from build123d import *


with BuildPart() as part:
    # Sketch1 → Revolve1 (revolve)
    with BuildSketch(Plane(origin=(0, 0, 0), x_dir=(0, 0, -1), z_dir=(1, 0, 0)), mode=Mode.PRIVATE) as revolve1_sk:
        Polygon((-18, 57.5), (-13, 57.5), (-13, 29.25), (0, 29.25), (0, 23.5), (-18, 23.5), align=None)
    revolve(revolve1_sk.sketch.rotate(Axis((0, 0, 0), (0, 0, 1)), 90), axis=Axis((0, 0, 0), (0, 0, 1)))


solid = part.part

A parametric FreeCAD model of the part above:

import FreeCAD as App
import Part
import Sketcher

V = App.Vector

doc = App.newDocument("Part")
params = doc.addObject("Spreadsheet::Sheet", "Params")
for row, (alias, value) in enumerate([
    ("sketch1_width", "34 mm"),
    ("sketch1_height", "5 mm"),
    ("sketch1_height2", "18 mm"),
    ("sketch1_width2", "5.75 mm"),
    ("revolution_angle", "360 deg"),
], start=1):
    params.set(f"A{row}", alias)
    params.set(f"B{row}", "=" + value)
    params.setAlias(f"B{row}", alias)

body = doc.addObject("PartDesign::Body", "Body")

sketch1 = doc.addObject("Sketcher::SketchObject", "Sketch")
body.addObject(sketch1)
sketch1.AttachmentSupport = (doc.YZ_Plane, [""])
sketch1.MapMode = "FlatFace"
sketch1.addGeometry([
    Part.LineSegment(V(58, 13, 0), V(58, 18, 0)),
    Part.LineSegment(V(58, 18, 0), V(24, 18, 0)),
    Part.LineSegment(V(24, 18, 0), V(24, 0, 0)),
    Part.LineSegment(V(24, 0, 0), V(29, 0, 0)),
    Part.LineSegment(V(29, 0, 0), V(29, 13, 0)),
    Part.LineSegment(V(29, 13, 0), V(58, 13, 0)),
], False)
sketch1.addConstraint([
    Sketcher.Constraint("Coincident", 0, 2, 1, 1),
    Sketcher.Constraint("Coincident", 1, 2, 2, 1),
    Sketcher.Constraint("Coincident", 2, 2, 3, 1),
    Sketcher.Constraint("Coincident", 3, 2, 4, 1),
    Sketcher.Constraint("Coincident", 4, 2, 5, 1),
    Sketcher.Constraint("Coincident", 5, 2, 0, 1),
    Sketcher.Constraint("Vertical", 0),
    Sketcher.Constraint("Horizontal", 1),
    Sketcher.Constraint("Vertical", 2),
    Sketcher.Constraint("Horizontal", 3),
    Sketcher.Constraint("Vertical", 4),
    Sketcher.Constraint("Horizontal", 5),
    Sketcher.Constraint("PointOnObject", 2, 2, -1),
    Sketcher.Constraint("DistanceX", 1, 2, 1, 1, 34.0),
    Sketcher.Constraint("DistanceY", 0, 1, 0, 2, 5.0),
    Sketcher.Constraint("DistanceY", 2, 2, 2, 1, 18.0),
    Sketcher.Constraint("DistanceX", 3, 1, 3, 2, 5.75),
    Sketcher.Constraint("DistanceX", -1, 1, 0, 2, 57.5),
])
sketch1.setExpression("Constraints[13]", "Params.sketch1_width")
sketch1.setExpression("Constraints[14]", "Params.sketch1_height")
sketch1.setExpression("Constraints[15]", "Params.sketch1_height2")
sketch1.setExpression("Constraints[16]", "Params.sketch1_width2")
revolution = doc.addObject("PartDesign::Revolution", "Revolution")
body.addObject(revolution)
revolution.Profile = sketch1
revolution.ReferenceAxis = (sketch1, ["V_Axis"])
revolution.setExpression("Angle", "Params.revolution_angle")

doc.recompute()
